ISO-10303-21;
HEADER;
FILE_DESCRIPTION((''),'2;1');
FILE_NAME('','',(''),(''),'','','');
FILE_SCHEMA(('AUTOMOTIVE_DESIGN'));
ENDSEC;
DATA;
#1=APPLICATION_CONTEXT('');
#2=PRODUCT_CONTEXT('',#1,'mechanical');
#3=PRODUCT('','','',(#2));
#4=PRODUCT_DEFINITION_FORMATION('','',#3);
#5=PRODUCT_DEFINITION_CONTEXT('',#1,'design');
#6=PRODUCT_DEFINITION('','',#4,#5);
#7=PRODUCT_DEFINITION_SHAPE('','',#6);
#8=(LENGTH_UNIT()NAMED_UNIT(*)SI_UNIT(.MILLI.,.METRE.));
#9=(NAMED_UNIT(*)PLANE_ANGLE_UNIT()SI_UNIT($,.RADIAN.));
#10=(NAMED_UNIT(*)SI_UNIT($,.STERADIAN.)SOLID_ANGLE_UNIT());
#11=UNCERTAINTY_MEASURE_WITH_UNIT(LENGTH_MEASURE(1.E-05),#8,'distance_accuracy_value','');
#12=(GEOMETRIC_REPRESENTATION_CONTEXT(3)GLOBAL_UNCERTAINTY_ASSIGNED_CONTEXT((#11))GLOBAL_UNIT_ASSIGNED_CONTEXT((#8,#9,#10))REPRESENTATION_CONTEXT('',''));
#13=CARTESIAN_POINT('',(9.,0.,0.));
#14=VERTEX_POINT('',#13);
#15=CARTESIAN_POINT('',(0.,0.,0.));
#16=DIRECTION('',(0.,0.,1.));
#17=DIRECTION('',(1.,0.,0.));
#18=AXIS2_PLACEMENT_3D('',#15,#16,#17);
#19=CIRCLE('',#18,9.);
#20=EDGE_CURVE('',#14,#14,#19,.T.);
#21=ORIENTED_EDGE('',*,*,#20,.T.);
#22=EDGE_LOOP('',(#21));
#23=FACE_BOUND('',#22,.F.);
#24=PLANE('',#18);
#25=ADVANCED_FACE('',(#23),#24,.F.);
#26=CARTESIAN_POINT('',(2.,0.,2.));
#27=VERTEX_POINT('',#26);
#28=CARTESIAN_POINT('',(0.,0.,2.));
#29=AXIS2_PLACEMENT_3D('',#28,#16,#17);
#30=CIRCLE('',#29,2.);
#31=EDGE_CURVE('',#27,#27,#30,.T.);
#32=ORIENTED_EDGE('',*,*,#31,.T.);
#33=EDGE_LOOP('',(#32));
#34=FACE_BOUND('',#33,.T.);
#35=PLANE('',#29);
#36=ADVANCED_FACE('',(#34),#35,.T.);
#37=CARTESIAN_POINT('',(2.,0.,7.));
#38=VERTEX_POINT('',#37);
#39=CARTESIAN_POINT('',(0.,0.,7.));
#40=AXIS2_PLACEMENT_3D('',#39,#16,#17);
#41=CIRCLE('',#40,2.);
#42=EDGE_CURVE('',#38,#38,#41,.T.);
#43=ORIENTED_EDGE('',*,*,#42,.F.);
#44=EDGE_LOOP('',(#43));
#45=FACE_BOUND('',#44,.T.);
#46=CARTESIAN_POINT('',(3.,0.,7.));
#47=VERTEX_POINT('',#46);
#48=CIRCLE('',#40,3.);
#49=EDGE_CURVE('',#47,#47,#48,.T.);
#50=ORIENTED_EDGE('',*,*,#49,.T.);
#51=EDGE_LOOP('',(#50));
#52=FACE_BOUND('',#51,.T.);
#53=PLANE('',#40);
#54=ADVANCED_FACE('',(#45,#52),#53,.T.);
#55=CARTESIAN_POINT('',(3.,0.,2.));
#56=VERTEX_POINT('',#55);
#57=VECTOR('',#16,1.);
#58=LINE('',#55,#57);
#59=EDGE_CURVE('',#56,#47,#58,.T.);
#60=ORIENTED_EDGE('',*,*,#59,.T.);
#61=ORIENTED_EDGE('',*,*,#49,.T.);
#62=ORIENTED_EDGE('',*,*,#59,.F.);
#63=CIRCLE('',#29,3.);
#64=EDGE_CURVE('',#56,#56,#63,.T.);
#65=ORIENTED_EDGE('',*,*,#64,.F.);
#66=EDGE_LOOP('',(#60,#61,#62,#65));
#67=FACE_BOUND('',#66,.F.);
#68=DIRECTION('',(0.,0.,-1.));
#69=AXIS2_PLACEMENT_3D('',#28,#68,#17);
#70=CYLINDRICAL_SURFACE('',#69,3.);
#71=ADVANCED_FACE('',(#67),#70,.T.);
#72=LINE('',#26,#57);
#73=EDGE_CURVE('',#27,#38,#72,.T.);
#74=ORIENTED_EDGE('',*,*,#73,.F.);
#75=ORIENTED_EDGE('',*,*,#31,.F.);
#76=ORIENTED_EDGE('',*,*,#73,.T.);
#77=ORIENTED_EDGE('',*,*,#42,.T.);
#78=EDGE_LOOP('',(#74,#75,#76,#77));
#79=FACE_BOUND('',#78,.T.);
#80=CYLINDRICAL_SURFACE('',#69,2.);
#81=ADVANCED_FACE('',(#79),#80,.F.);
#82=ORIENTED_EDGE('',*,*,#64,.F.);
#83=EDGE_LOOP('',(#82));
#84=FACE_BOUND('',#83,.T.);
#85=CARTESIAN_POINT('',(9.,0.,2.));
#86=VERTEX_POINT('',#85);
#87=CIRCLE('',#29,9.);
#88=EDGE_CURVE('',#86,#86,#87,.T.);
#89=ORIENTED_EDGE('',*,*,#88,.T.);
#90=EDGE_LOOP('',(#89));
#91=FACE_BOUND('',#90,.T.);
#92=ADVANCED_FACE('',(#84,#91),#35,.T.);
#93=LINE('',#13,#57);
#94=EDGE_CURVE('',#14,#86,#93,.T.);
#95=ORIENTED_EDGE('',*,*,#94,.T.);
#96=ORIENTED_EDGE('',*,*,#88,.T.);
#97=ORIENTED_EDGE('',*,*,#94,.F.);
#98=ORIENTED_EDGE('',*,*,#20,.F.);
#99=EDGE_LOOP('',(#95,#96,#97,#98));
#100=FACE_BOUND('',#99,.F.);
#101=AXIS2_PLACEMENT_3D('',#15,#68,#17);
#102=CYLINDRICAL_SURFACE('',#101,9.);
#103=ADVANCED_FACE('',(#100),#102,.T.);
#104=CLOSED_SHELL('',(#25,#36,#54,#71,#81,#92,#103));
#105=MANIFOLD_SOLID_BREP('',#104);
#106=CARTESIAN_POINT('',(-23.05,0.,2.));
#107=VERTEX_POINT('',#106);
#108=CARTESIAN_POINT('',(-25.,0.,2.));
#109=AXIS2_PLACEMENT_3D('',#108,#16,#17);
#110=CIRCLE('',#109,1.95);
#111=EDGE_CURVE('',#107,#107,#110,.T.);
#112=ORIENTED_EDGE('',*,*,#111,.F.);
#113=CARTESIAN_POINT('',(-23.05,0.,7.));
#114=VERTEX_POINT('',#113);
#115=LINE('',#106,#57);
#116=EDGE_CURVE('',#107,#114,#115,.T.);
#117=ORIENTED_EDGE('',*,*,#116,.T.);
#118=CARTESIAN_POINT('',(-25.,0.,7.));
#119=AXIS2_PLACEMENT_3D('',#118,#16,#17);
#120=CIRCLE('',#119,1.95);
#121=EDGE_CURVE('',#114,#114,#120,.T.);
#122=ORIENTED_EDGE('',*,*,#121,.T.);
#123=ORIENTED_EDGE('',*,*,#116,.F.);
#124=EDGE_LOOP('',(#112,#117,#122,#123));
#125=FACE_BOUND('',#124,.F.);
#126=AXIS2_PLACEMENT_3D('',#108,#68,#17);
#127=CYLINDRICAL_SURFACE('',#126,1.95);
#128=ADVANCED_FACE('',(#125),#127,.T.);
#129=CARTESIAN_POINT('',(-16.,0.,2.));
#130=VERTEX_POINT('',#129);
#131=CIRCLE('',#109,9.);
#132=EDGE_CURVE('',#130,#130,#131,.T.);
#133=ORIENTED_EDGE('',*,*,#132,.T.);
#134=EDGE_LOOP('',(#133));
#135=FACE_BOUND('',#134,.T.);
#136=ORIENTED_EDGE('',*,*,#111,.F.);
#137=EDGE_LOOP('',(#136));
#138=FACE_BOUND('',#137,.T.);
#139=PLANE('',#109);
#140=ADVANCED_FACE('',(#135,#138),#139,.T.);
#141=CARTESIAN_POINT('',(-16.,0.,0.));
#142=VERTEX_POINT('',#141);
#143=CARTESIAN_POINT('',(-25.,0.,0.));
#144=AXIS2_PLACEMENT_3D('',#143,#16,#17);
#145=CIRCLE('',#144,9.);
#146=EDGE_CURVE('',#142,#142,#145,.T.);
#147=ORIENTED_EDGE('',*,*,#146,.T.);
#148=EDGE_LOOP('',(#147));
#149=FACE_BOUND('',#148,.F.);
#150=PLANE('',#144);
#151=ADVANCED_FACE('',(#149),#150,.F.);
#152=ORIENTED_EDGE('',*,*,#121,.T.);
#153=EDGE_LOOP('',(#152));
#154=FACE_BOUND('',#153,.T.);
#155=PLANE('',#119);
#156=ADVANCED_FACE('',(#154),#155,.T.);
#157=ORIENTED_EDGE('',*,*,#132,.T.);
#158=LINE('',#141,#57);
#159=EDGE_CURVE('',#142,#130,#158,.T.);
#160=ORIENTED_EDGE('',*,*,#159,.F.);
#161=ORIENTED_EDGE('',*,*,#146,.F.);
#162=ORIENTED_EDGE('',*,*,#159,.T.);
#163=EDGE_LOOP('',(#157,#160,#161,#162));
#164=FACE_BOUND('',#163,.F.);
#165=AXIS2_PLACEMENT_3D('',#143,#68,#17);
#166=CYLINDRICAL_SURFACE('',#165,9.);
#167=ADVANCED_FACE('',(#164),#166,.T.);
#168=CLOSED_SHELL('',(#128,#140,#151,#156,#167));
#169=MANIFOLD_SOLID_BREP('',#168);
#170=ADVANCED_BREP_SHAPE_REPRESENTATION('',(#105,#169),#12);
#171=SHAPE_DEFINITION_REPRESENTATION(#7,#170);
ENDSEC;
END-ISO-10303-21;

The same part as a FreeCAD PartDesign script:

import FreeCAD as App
import Part
import Sketcher
from FreeCAD import Vector
Q = App.Units.Quantity

doc = App.newDocument("Part")
body = doc.addObject("PartDesign::Body", "Body")
body.AllowCompound = True

sketch1 = doc.addObject("Sketcher::SketchObject", "Sketch")
body.addObject(sketch1)
sketch1.AttachmentSupport = (doc.XY_Plane, [""])
sketch1.MapMode = "FlatFace"
sketch1.addGeometry([
    Part.Circle(Vector(0, 0, 0), Vector(0, 0, 1), 9),
    Part.Circle(Vector(-25, 0, 0), Vector(0, 0, 1), 9),
], False)
sketch1.addConstraint([
    Sketcher.Constraint("Coincident", 0, 3, -1, 1),
    Sketcher.Constraint("Equal", 0, 1),
    Sketcher.Constraint("PointOnObject", 1, 3, -1),
    Sketcher.Constraint("Diameter", 0, Q("18 mm")),
    Sketcher.Constraint("DistanceX", 1, 3, -1, 1, Q("25 mm")),
])
pad1 = doc.addObject("PartDesign::Pad", "Pad")
body.addObject(pad1)
pad1.Profile = sketch1
pad1.Length = 2

sketch2 = doc.addObject("Sketcher::SketchObject", "Sketch001")
body.addObject(sketch2)
sketch2.AttachmentSupport = (doc.XY_Plane, [""])
sketch2.MapMode = "FlatFace"
sketch2.AttachmentOffset = App.Placement(Vector(0, 0, 2), App.Rotation())
sketch2.addGeometry([
    Part.Circle(Vector(0, 0, 0), Vector(0, 0, 1), 3),
    Part.Circle(Vector(0, 0, 0), Vector(0, 0, 1), 2),
], False)
sketch2.addConstraint([
    Sketcher.Constraint("Coincident", 0, 3, -1, 1),
    Sketcher.Constraint("Coincident", 1, 3, -1, 1),
    Sketcher.Constraint("Diameter", 0, Q("6 mm")),
    Sketcher.Constraint("Diameter", 1, Q("4 mm")),
])
pad2 = doc.addObject("PartDesign::Pad", "Pad001")
body.addObject(pad2)
pad2.Profile = sketch2
pad2.Length = 5

sketch3 = doc.addObject("Sketcher::SketchObject", "Sketch002")
body.addObject(sketch3)
sketch3.AttachmentSupport = (doc.XY_Plane, [""])
sketch3.MapMode = "FlatFace"
sketch3.AttachmentOffset = App.Placement(Vector(0, 0, 2), App.Rotation())
sketch3.addGeometry(Part.Circle(Vector(-25, 0, 0), Vector(0, 0, 1), 1.95), False)
sketch3.addConstraint([
    Sketcher.Constraint("PointOnObject", 0, 3, -1),
    Sketcher.Constraint("Diameter", 0, Q("3.9 mm")),
    Sketcher.Constraint("DistanceX", 0, 3, -1, 1, Q("25 mm")),
])
pad3 = doc.addObject("PartDesign::Pad", "Pad002")
body.addObject(pad3)
pad3.Profile = sketch3
pad3.Length = 5

doc.recompute()
